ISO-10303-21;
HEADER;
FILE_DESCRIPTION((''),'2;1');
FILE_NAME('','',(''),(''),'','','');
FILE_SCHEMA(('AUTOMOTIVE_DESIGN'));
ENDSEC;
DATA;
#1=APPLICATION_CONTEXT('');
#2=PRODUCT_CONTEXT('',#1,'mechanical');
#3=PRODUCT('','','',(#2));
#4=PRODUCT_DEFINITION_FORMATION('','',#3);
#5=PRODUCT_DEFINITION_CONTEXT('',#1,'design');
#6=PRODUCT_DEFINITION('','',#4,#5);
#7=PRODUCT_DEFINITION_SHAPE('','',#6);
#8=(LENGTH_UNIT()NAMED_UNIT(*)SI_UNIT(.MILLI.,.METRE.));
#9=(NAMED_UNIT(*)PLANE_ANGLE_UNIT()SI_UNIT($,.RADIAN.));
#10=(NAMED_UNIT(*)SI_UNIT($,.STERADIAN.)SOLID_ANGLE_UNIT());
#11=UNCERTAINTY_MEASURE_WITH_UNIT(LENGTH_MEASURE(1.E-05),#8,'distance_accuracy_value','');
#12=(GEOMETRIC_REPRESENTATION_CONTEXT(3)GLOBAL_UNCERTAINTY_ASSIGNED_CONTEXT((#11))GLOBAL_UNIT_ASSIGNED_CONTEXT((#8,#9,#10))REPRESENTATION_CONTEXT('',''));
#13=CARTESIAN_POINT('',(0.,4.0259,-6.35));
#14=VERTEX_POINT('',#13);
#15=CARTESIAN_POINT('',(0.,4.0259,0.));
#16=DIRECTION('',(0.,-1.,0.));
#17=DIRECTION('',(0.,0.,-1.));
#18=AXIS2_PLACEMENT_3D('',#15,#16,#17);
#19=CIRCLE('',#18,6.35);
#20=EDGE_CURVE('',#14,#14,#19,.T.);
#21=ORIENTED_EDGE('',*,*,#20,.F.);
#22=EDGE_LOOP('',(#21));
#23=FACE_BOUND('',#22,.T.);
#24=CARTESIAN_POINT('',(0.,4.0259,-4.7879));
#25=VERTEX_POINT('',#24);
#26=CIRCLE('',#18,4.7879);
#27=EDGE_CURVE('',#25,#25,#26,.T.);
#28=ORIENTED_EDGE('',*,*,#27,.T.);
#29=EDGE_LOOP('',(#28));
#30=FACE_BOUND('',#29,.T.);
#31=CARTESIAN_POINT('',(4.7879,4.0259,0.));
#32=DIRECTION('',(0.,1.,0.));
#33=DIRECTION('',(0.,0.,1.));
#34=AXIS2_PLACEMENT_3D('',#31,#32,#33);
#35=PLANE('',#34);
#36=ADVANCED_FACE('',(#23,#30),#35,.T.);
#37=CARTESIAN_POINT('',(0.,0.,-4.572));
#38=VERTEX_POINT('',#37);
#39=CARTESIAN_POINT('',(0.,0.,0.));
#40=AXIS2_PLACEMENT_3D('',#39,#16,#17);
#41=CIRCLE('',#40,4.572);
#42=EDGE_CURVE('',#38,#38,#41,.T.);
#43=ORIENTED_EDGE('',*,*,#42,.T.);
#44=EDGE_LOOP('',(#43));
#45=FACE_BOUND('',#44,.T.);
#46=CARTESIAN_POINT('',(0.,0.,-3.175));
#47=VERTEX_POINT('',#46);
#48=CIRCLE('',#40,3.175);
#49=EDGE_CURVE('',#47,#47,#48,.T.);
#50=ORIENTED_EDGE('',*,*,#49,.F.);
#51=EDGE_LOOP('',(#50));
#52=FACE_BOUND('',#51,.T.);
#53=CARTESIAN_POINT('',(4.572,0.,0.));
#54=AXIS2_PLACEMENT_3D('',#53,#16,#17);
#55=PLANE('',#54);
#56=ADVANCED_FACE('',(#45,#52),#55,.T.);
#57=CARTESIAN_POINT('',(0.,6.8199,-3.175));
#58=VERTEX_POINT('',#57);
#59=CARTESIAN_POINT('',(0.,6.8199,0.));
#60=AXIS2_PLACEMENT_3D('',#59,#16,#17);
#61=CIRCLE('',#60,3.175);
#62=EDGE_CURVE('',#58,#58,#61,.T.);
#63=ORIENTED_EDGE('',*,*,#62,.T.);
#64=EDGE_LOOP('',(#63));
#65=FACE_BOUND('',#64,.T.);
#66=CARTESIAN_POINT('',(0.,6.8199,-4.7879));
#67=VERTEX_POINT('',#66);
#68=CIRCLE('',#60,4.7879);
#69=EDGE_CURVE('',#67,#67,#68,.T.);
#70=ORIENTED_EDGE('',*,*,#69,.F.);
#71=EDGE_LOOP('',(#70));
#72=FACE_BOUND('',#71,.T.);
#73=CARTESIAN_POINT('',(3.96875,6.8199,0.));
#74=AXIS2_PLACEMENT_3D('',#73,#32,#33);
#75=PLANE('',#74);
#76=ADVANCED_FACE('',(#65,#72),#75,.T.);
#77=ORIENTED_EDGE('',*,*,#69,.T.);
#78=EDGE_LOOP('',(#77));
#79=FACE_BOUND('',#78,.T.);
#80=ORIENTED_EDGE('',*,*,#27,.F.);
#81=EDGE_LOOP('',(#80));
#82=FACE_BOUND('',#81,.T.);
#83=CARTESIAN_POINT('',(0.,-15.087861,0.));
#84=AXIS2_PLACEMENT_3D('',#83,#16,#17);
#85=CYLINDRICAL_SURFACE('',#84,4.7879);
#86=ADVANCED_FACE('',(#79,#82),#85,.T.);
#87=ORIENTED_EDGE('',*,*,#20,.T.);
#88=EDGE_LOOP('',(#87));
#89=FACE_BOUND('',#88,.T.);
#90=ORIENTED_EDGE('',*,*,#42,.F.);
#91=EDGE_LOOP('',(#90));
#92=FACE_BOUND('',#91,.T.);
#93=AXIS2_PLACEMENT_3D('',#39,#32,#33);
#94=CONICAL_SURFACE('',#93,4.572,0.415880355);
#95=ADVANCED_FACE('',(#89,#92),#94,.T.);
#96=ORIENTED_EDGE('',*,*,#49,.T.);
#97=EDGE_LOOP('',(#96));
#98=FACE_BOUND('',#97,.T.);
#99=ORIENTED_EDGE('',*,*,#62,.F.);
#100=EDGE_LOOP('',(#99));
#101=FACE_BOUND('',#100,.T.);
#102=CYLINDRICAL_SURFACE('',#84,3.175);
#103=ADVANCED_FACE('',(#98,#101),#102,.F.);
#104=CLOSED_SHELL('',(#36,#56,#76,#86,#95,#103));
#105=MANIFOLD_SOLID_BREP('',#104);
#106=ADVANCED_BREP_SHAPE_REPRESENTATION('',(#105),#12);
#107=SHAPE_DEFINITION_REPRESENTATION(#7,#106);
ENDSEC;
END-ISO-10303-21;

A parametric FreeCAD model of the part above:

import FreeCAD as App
import Part
import Sketcher
from FreeCAD import Vector
Q = App.Units.Quantity


def add_polygon(sketch, points):
    """Adds a closed chain of lines whose ends are joined by coincident constraints."""
    first, n = sketch.GeometryCount, len(points)
    for a, b in zip(points, points[1:] + points[:1]):
        sketch.addGeometry(Part.LineSegment(App.Vector(*a, 0), App.Vector(*b, 0)), False)
    for i in range(n):
        sketch.addConstraint(Sketcher.Constraint("Coincident", first + i, 2, first + (i + 1) % n, 1))

doc = App.newDocument("Part")
body = doc.addObject("PartDesign::Body", "Body")

# Sketch on XY plane
sketch1 = body.newObject("Sketcher::SketchObject", "Sketch")
sketch1.AttachmentSupport = (doc.getObject("XY_Plane"), [""])
sketch1.MapMode = "FlatFace"
add_polygon(sketch1, [(3.2, 6.8), (3.2, 0), (4.6, 0), (6.3, 4), (4.8, 4), (4.8, 6.8)])  # lines 0-5
sketch1.addConstraint(Sketcher.Constraint("Vertical", 0))
sketch1.addConstraint(Sketcher.Constraint("Horizontal", 1))
sketch1.addConstraint(Sketcher.Constraint("Horizontal", 3))
sketch1.addConstraint(Sketcher.Constraint("Vertical", 4))
sketch1.addConstraint(Sketcher.Constraint("Horizontal", 5))
sketch1.addConstraint(Sketcher.Constraint("PointOnObject", 0, 2, -1))
sketch1.addConstraint(Sketcher.Constraint("DistanceY", 4, 1, 4, 2, Q("0.11 in")))
sketch1.addConstraint(Sketcher.Constraint("DistanceX", 1, 1, 1, 2, Q("0.055 in")))
sketch1.addConstraint(Sketcher.Constraint("DistanceX", -1, 1, 1, 2, Q("0.18 in")))
sketch1.addConstraint(Sketcher.Constraint("DistanceX", -1, 1, 2, 2, Q("0.25 in")))
sketch1.addConstraint(Sketcher.Constraint("DistanceX", 3, 2, 3, 1, Q("0.0615 in")))
sketch1.addConstraint(Sketcher.Constraint("DistanceY", 0, 2, 0, 1, Q("0.2685 in")))
revolution = body.newObject("PartDesign::Revolution", "Revolution")
revolution.Profile = sketch1
revolution.ReferenceAxis = (sketch1, ["V_Axis"])
revolution.Angle = 360

doc.recompute()
